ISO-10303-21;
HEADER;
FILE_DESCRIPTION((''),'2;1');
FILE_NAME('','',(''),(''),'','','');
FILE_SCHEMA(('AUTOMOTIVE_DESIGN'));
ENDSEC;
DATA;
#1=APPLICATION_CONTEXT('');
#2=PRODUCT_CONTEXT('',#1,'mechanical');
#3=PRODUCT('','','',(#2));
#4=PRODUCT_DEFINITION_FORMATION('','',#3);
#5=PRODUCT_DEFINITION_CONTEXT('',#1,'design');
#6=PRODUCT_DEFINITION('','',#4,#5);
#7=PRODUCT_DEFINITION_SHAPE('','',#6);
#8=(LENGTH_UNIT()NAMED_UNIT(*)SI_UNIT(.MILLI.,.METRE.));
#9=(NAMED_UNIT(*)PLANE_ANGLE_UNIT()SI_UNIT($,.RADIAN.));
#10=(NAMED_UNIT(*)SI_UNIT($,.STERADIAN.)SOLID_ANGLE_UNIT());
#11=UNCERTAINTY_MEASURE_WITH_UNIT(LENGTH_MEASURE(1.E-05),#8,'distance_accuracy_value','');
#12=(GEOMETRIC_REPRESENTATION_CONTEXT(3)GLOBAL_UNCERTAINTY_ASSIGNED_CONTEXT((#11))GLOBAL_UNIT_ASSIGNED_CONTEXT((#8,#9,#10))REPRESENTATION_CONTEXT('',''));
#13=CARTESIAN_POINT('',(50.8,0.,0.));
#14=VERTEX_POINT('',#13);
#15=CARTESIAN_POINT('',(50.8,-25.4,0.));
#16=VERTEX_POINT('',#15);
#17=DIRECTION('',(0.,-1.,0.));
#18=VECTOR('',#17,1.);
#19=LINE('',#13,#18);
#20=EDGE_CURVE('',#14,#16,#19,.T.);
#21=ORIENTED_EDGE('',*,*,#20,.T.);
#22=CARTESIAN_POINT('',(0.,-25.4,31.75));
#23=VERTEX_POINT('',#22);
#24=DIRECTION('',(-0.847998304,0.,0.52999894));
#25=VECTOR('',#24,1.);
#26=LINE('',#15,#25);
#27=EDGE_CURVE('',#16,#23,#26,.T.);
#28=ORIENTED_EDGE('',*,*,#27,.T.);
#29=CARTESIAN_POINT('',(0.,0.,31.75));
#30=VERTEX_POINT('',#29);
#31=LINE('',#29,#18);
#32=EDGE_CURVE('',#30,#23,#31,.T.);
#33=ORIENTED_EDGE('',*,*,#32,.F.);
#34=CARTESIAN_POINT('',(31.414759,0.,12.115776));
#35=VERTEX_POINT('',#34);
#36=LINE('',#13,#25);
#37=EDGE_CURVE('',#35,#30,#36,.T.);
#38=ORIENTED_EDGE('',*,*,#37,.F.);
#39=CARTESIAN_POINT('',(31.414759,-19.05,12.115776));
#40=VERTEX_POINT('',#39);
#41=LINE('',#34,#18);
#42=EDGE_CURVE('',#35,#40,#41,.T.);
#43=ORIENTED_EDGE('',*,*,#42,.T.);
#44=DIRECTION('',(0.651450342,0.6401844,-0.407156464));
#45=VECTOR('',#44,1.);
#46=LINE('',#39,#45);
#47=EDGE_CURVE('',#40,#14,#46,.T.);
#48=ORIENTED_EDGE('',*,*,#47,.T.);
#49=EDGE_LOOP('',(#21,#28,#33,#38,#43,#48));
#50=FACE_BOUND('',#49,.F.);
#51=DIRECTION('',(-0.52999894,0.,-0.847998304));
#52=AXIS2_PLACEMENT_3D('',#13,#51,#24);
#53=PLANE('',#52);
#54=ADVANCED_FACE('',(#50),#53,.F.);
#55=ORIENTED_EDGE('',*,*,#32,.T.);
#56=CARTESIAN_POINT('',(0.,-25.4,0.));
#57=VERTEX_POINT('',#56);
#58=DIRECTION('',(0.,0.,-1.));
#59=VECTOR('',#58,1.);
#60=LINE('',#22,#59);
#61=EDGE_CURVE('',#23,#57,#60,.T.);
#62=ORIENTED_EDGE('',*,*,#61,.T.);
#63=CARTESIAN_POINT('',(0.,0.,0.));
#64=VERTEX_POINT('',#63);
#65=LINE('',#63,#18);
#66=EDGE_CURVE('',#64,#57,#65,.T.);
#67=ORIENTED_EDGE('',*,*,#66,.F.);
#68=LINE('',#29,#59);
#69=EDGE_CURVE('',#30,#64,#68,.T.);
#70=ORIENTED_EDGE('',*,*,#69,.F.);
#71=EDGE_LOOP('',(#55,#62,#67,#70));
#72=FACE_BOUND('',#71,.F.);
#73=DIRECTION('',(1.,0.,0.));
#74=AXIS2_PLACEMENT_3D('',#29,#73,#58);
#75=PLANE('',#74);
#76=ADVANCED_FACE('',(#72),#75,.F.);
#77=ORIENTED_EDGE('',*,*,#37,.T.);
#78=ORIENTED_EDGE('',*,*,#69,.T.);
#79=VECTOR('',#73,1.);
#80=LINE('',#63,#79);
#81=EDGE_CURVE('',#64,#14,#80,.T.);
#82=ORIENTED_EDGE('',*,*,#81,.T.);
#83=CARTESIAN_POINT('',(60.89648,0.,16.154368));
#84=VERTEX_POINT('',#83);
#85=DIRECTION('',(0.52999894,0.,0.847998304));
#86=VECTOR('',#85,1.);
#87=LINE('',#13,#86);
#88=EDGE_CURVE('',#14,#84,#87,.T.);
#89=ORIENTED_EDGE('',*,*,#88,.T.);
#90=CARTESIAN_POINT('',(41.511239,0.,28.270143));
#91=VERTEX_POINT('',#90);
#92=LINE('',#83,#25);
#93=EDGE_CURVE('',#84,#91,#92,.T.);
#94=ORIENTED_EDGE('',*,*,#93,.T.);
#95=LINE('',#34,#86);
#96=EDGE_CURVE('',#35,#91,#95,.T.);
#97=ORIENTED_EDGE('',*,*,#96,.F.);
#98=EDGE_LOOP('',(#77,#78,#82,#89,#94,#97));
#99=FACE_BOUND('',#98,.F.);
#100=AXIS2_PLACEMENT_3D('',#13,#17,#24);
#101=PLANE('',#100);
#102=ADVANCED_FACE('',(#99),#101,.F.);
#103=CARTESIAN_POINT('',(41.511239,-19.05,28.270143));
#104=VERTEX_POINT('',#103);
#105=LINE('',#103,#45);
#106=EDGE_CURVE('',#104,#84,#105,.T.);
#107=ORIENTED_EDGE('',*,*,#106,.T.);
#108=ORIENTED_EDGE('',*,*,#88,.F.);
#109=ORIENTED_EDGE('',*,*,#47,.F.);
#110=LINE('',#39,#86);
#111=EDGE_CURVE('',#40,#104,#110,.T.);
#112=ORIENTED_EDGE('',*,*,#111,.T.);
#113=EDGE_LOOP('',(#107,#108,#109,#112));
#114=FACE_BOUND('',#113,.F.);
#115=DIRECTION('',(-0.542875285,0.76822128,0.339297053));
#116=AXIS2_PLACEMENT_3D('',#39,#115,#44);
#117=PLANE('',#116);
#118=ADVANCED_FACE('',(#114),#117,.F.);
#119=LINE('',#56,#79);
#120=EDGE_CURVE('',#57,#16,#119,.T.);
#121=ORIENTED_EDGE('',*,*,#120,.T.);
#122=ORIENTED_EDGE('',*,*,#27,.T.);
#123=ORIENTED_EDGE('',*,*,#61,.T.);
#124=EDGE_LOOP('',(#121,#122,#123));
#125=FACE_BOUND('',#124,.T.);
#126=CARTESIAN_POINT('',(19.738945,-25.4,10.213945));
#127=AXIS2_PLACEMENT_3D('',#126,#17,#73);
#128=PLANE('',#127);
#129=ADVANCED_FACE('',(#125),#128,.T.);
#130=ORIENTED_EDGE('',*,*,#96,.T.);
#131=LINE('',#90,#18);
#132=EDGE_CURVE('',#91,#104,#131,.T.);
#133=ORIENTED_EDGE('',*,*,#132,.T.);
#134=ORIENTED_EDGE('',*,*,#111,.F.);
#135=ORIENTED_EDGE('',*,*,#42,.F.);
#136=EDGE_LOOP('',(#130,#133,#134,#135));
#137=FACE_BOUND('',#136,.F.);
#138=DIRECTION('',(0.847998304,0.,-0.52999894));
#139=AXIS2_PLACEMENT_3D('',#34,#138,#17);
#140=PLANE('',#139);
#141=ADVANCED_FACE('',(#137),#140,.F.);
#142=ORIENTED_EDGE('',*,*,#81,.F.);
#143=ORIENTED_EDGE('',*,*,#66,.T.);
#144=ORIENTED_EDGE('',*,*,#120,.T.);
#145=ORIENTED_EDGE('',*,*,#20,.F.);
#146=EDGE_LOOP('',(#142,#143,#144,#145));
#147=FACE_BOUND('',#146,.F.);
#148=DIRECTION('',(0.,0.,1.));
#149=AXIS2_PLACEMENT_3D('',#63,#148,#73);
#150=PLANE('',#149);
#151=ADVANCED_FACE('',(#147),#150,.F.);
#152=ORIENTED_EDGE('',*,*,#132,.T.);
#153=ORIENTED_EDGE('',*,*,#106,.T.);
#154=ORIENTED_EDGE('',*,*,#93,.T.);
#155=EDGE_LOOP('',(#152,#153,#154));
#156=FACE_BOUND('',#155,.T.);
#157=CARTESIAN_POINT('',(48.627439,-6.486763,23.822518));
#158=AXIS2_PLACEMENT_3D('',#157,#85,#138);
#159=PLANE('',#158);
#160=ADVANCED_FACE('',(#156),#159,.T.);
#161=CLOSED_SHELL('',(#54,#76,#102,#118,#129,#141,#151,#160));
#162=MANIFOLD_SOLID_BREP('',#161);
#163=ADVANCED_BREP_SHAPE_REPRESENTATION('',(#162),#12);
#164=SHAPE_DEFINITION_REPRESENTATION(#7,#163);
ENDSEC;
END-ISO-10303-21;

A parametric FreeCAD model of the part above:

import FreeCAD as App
import Part
import Sketcher

V = App.Vector
Q = App.Units.Quantity

doc = App.newDocument("Part")
body = doc.addObject("PartDesign::Body", "Body")

sketch1 = body.newObject("Sketcher::SketchObject", "Sketch")
sketch1.AttachmentSupport = (doc.getObject("XZ_Plane"), [""])
sketch1.MapMode = "FlatFace"
sketch1.addGeometry(Part.LineSegment(V(0, 32, 0), V(0, 0, 0)), False)
sketch1.addGeometry(Part.LineSegment(V(0, 0, 0), V(51, 0, 0)), False)
sketch1.addGeometry(Part.LineSegment(V(51, 0, 0), V(0, 32, 0)), False)
sketch1.addConstraint(Sketcher.Constraint("Coincident", 0, 2, 1, 1))
sketch1.addConstraint(Sketcher.Constraint("Coincident", 1, 2, 2, 1))
sketch1.addConstraint(Sketcher.Constraint("Coincident", 2, 2, 0, 1))
sketch1.addConstraint(Sketcher.Constraint("Vertical", 0))
sketch1.addConstraint(Sketcher.Constraint("Horizontal", 1))
sketch1.addConstraint(Sketcher.Constraint("Coincident", 0, 2, -1, 1))
sketch1.addConstraint(Sketcher.Constraint("DistanceX", 1, 1, 1, 2, Q("2 in")))
sketch1.addConstraint(Sketcher.Constraint("DistanceY", 0, 2, 0, 1, Q("1.25 in")))
pad1 = body.newObject("PartDesign::Pad", "Pad")
pad1.Profile = sketch1
pad1.Length = Q("1 in")

sketch2 = body.newObject("Sketcher::SketchObject", "Sketch001")
sketch2.Placement = App.Placement(V(14.269663, 0, 22.831461), App.Rotation(V(0.847998304, 0, -0.52999894), V(0, 1, 0), V(0.52999894, 0, 0.847998304), "ZXY"))
sketch2.addGeometry(Part.LineSegment(V(20, -19, 0), V(43, 0, 0)), False)
sketch2.addGeometry(Part.LineSegment(V(43, 0, 0), V(20, 0, 0)), False)
sketch2.addGeometry(Part.LineSegment(V(20, 0, 0), V(20, -19, 0)), False)
sketch2.addConstraint(Sketcher.Constraint("Coincident", 0, 2, 1, 1))
sketch2.addConstraint(Sketcher.Constraint("Coincident", 1, 2, 2, 1))
sketch2.addConstraint(Sketcher.Constraint("Coincident", 2, 2, 0, 1))
sketch2.addConstraint(Sketcher.Constraint("Horizontal", 1))
sketch2.addConstraint(Sketcher.Constraint("Vertical", 2))
sketch2.addConstraint(Sketcher.Constraint("PointOnObject", 0, 2, -1))
sketch2.addConstraint(Sketcher.Constraint("DistanceX", 1, 2, 1, 1, Q("0.9 in")))
sketch2.addConstraint(Sketcher.Constraint("DistanceY", 2, 2, 2, 1, Q("0.75 in")))
sketch2.addConstraint(Sketcher.Constraint("DistanceX", -1, 1, 0, 2, Q("43.078314 mm")))
pad2 = body.newObject("PartDesign::Pad", "Pad001")
pad2.Profile = sketch2
pad2.Length = Q("0.75 in")

doc.recompute()
